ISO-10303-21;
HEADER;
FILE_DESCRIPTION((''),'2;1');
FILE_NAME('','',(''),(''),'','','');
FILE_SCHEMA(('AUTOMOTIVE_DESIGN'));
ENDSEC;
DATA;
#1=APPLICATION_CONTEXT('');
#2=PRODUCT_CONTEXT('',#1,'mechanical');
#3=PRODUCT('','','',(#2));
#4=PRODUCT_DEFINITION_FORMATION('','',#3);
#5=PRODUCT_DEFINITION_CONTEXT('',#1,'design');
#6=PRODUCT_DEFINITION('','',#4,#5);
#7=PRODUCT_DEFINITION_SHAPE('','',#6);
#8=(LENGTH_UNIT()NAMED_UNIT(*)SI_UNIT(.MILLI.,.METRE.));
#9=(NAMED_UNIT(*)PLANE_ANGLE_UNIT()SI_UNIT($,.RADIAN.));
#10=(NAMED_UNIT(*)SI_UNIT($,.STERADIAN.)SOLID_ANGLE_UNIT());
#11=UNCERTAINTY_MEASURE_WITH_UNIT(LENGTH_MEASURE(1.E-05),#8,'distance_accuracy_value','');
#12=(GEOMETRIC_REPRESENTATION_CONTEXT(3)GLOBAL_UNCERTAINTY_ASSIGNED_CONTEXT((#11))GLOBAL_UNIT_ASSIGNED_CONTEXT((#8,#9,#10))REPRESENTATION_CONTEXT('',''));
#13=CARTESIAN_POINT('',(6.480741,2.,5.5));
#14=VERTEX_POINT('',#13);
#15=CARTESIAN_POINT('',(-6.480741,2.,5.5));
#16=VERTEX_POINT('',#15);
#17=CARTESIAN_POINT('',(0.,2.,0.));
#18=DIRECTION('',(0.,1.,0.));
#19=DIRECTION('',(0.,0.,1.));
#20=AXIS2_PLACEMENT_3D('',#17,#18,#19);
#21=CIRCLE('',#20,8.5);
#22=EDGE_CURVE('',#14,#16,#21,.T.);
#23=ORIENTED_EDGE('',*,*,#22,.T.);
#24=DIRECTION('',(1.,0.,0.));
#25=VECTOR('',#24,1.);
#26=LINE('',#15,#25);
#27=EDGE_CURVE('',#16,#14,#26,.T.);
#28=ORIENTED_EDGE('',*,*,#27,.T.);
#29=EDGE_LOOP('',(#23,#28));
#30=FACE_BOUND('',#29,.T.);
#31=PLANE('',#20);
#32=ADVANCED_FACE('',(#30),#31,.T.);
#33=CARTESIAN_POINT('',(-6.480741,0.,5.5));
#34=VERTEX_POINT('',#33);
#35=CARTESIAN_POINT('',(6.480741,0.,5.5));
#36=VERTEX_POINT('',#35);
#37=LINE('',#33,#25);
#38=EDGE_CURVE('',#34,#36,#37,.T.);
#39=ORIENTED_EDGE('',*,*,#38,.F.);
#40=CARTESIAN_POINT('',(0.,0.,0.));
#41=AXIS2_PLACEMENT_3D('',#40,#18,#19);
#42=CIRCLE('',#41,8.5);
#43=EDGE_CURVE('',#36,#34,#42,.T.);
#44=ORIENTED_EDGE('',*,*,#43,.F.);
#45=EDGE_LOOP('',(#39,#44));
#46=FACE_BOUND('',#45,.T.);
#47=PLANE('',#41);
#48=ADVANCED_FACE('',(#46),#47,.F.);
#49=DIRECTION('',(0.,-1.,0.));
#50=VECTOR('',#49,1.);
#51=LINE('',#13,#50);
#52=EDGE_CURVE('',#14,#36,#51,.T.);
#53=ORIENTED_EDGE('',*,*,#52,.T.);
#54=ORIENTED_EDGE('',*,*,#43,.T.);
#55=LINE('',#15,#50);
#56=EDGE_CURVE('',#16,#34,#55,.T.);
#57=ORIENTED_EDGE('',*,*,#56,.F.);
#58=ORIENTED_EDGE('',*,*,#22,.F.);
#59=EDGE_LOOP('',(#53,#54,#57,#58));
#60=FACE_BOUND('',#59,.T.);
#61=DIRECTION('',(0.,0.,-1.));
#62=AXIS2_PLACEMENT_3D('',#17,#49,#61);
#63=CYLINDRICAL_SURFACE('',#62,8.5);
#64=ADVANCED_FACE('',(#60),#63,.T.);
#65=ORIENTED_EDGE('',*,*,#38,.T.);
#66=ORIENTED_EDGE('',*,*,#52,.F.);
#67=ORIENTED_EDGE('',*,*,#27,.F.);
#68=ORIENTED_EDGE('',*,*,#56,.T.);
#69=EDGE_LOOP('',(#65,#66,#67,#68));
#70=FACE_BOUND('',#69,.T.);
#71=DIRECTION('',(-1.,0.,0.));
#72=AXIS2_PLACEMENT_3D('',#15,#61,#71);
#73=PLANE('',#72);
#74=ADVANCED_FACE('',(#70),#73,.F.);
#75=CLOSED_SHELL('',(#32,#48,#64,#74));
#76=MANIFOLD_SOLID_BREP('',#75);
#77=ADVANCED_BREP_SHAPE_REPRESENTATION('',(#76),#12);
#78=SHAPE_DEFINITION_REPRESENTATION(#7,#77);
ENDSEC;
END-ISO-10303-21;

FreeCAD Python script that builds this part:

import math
import FreeCAD as App
import Part
import Sketcher

V = App.Vector
Q = App.Units.Quantity

doc = App.newDocument("Part")
body = doc.addObject("PartDesign::Body", "Body")

# Sketch on XZ plane
sketch1 = doc.addObject("Sketcher::SketchObject", "Sketch")
body.addObject(sketch1)
sketch1.AttachmentSupport = (doc.XZ_Plane, [""])
sketch1.MapMode = "FlatFace"
sketch1.addGeometry(Part.LineSegment(V(-6, 6, 0), V(6, 6, 0)), False)
sketch1.addGeometry(Part.ArcOfCircle(Part.Circle(V(0, 0, 0), V(0, 0, 1), 8), math.radians(140), math.radians(400)), False)
sketch1.addConstraint(Sketcher.Constraint("Coincident", 0, 1, 1, 1))
sketch1.addConstraint(Sketcher.Constraint("Coincident", 1, 2, 0, 2))
sketch1.addConstraint(Sketcher.Constraint("Horizontal", 0))
sketch1.addConstraint(Sketcher.Constraint("Coincident", 1, 3, -1, 1))
sketch1.addConstraint(Sketcher.Constraint("Radius", 1, Q("8.5 mm")))
sketch1.addConstraint(Sketcher.Constraint("DistanceY", -1, 1, 0, 1, Q("5.5 mm")))
pad1 = doc.addObject("PartDesign::Pad", "Pad")
body.addObject(pad1)
pad1.Profile = sketch1
pad1.Length = 2
pad1.Reversed = True

doc.recompute()
